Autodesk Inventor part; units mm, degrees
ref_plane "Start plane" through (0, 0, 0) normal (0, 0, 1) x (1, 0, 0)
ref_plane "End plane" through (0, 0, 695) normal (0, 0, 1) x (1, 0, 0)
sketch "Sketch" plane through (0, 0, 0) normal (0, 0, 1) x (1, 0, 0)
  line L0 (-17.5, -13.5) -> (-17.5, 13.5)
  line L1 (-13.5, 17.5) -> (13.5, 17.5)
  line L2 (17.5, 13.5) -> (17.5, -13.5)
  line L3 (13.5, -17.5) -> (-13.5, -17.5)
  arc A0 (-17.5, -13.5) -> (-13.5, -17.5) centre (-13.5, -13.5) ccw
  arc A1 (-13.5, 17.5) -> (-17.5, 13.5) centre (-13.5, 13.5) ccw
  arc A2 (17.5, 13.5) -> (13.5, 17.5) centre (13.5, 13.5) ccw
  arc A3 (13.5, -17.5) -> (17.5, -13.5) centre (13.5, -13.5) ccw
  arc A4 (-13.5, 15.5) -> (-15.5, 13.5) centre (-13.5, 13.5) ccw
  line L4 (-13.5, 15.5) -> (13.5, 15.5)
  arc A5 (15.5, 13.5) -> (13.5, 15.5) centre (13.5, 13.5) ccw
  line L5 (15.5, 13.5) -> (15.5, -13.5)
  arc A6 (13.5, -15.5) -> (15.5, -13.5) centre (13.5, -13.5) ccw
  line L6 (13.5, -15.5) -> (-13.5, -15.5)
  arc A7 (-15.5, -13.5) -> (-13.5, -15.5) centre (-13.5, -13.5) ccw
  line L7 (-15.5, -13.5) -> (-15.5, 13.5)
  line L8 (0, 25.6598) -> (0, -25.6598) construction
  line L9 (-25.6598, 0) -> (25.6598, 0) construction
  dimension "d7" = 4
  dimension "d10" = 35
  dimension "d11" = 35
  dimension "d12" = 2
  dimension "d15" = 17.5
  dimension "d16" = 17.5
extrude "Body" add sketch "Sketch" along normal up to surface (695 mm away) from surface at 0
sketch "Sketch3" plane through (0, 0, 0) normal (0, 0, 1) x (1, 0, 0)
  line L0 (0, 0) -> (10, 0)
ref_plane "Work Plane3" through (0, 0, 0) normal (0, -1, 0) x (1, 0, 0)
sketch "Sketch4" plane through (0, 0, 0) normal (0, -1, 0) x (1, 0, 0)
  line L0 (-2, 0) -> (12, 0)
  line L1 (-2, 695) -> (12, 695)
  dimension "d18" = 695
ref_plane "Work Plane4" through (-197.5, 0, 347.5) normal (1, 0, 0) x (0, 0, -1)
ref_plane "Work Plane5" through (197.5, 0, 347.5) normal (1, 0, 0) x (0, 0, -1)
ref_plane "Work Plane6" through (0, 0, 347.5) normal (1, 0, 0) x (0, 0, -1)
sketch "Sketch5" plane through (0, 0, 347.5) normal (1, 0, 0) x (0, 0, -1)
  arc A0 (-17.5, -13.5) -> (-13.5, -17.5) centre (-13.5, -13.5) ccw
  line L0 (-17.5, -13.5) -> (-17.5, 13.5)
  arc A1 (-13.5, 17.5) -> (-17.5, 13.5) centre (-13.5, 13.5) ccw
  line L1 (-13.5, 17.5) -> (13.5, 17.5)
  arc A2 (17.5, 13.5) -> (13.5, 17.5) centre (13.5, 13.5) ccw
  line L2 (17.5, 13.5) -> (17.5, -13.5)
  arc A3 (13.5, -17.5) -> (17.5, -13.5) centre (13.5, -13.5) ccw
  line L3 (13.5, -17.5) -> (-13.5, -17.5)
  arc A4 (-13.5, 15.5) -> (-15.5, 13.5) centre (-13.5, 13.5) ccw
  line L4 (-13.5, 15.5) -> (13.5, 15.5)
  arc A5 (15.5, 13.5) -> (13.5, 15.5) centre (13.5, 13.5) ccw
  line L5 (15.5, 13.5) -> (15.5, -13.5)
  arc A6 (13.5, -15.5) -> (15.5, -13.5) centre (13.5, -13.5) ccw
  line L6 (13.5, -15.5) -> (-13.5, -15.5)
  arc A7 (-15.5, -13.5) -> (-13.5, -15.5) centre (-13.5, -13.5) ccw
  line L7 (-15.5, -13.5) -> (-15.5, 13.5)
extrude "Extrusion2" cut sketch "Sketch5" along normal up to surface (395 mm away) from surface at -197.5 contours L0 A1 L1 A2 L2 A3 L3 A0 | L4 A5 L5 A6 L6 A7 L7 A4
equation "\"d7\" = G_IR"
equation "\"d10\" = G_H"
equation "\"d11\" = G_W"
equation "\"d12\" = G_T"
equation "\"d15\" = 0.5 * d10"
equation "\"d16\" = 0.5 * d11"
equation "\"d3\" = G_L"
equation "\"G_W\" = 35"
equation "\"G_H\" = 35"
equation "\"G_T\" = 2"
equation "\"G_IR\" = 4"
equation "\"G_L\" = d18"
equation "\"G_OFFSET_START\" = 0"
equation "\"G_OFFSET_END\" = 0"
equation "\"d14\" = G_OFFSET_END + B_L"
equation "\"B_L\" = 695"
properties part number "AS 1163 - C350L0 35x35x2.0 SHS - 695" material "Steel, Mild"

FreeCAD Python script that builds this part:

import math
import FreeCAD as App
import Part
import Sketcher
Q = App.Units.Quantity

doc = App.newDocument("Part")
params = doc.addObject("Spreadsheet::Sheet", "Params")
for row, (alias, value) in enumerate([
    ("sketch1_radius", "4 mm"),
    ("sketch1_radius2", "2 mm"),
    ("pad1_length", "695 mm"),
    ("sketch2_radius", "4 mm"),
    ("sketch2_width", "27 mm"),
    ("pocket1_length", "395 mm"),
], start=1):
    params.set(f"A{row}", alias)
    params.set(f"B{row}", "=" + value)
    params.setAlias(f"B{row}", alias)

body = doc.addObject("PartDesign::Body", "Body")
body.AllowCompound = True

# Sketch on XY plane
sketch1 = body.newObject("Sketcher::SketchObject", "Sketch")
sketch1.AttachmentSupport = (doc.getObject("XY_Plane"), [""])
sketch1.MapMode = "FlatFace"
sketch1.addGeometry(Part.LineSegment(App.Vector(-17.5, 13.5, 0), App.Vector(-17.5, -13.5, 0)), False)
sketch1.addGeometry(Part.ArcOfCircle(Part.Circle(App.Vector(-13.5, -13.5, 0), App.Vector(0, 0, 1), 4), math.radians(180), math.radians(270)), False)
sketch1.addGeometry(Part.LineSegment(App.Vector(-13.5, -17.5, 0), App.Vector(13.5, -17.5, 0)), False)
sketch1.addGeometry(Part.ArcOfCircle(Part.Circle(App.Vector(13.5, -13.5, 0), App.Vector(0, 0, 1), 4), math.radians(-90), math.radians(0)), False)
sketch1.addGeometry(Part.LineSegment(App.Vector(17.5, -13.5, 0), App.Vector(17.5, 13.5, 0)), False)
sketch1.addGeometry(Part.ArcOfCircle(Part.Circle(App.Vector(13.5, 13.5, 0), App.Vector(0, 0, 1), 4), math.radians(0), math.radians(90)), False)
sketch1.addGeometry(Part.LineSegment(App.Vector(13.5, 17.5, 0), App.Vector(-13.5, 17.5, 0)), False)
sketch1.addGeometry(Part.ArcOfCircle(Part.Circle(App.Vector(-13.5, 13.5, 0), App.Vector(0, 0, 1), 4), math.radians(90), math.radians(180)), False)
sketch1.addGeometry(Part.ArcOfCircle(Part.Circle(App.Vector(-13.5, 13.5, 0), App.Vector(0, 0, 1), 2), math.radians(90), math.radians(180)), False)
sketch1.addGeometry(Part.LineSegment(App.Vector(-13.5, 15.5, 0), App.Vector(13.5, 15.5, 0)), False)
sketch1.addGeometry(Part.ArcOfCircle(Part.Circle(App.Vector(13.5, 13.5, 0), App.Vector(0, 0, 1), 2), math.radians(0), math.radians(90)), False)
sketch1.addGeometry(Part.LineSegment(App.Vector(15.5, 13.5, 0), App.Vector(15.5, -13.5, 0)), False)
sketch1.addGeometry(Part.ArcOfCircle(Part.Circle(App.Vector(13.5, -13.5, 0), App.Vector(0, 0, 1), 2), math.radians(-90), math.radians(0)), False)
sketch1.addGeometry(Part.LineSegment(App.Vector(13.5, -15.5, 0), App.Vector(-13.5, -15.5, 0)), False)
sketch1.addGeometry(Part.ArcOfCircle(Part.Circle(App.Vector(-13.5, -13.5, 0), App.Vector(0, 0, 1), 2), math.radians(180), math.radians(270)), False)
sketch1.addGeometry(Part.LineSegment(App.Vector(-15.5, -13.5, 0), App.Vector(-15.5, 13.5, 0)), False)
sketch1.addConstraint(Sketcher.Constraint("Tangent", 0, 2, 1, 1))
sketch1.addConstraint(Sketcher.Constraint("Tangent", 1, 2, 2, 1))
sketch1.addConstraint(Sketcher.Constraint("Tangent", 2, 2, 3, 1))
sketch1.addConstraint(Sketcher.Constraint("Tangent", 3, 2, 4, 1))
sketch1.addConstraint(Sketcher.Constraint("Tangent", 4, 2, 5, 1))
sketch1.addConstraint(Sketcher.Constraint("Tangent", 5, 2, 6, 1))
sketch1.addConstraint(Sketcher.Constraint("Tangent", 6, 2, 7, 1))
sketch1.addConstraint(Sketcher.Constraint("Tangent", 7, 2, 0, 1))
sketch1.addConstraint(Sketcher.Constraint("Tangent", 8, 1, 9, 1))
sketch1.addConstraint(Sketcher.Constraint("Tangent", 9, 2, 10, 2))
sketch1.addConstraint(Sketcher.Constraint("Tangent", 10, 1, 11, 1))
sketch1.addConstraint(Sketcher.Constraint("Tangent", 11, 2, 12, 2))
sketch1.addConstraint(Sketcher.Constraint("Tangent", 12, 1, 13, 1))
sketch1.addConstraint(Sketcher.Constraint("Tangent", 13, 2, 14, 2))
sketch1.addConstraint(Sketcher.Constraint("Tangent", 14, 1, 15, 1))
sketch1.addConstraint(Sketcher.Constraint("Tangent", 15, 2, 8, 2))
sketch1.addConstraint(Sketcher.Constraint("Vertical", 0))
sketch1.addConstraint(Sketcher.Constraint("Horizontal", 2))
sketch1.addConstraint(Sketcher.Constraint("Vertical", 4))
sketch1.addConstraint(Sketcher.Constraint("Horizontal", 6))
sketch1.addConstraint(Sketcher.Constraint("Horizontal", 9))
sketch1.addConstraint(Sketcher.Constraint("Vertical", 11))
sketch1.addConstraint(Sketcher.Constraint("Horizontal", 13))
sketch1.addConstraint(Sketcher.Constraint("Vertical", 15))
sketch1.addConstraint(Sketcher.Constraint("Coincident", 8, 3, 7, 3))
sketch1.addConstraint(Sketcher.Constraint("Coincident", 10, 3, 5, 3))
sketch1.addConstraint(Sketcher.Constraint("Coincident", 12, 3, 3, 3))
sketch1.addConstraint(Sketcher.Constraint("Equal", 1, 3))
sketch1.addConstraint(Sketcher.Constraint("Equal", 3, 5))
sketch1.addConstraint(Sketcher.Constraint("Equal", 5, 7))
sketch1.addConstraint(Sketcher.Constraint("Equal", 12, 14))
sketch1.addConstraint(Sketcher.Constraint("Symmetric", 1, 3, 5, 3, -1, 1))
sketch1.addConstraint(Sketcher.Constraint("Equal", 13, 0))
sketch1.addConstraint(Sketcher.Constraint("Radius", 1, Q("4 mm")))
sketch1.addConstraint(Sketcher.Constraint("Radius", 8, Q("2 mm")))
sketch1.addConstraint(Sketcher.Constraint("DistanceX", 0, 2, -1, 1, Q("17.5 mm")))
sketch1.setExpression("Constraints[33]", "Params.sketch1_radius")
sketch1.setExpression("Constraints[34]", "Params.sketch1_radius2")
pad1 = body.newObject("PartDesign::Pad", "Pad")
pad1.Profile = sketch1
pad1.setExpression("Length", "Params.pad1_length")

# Sketch on YZ plane
sketch2 = body.newObject("Sketcher::SketchObject", "Sketch001")
sketch2.AttachmentSupport = (doc.getObject("YZ_Plane"), [""])
sketch2.MapMode = "FlatFace"
sketch2.AttachmentOffset = App.Placement(App.Vector(0, 0, -197.5), App.Rotation())
sketch2.addGeometry(Part.LineSegment(App.Vector(13.5, 365, 0), App.Vector(-13.5, 365, 0)), False)
sketch2.addGeometry(Part.ArcOfCircle(Part.Circle(App.Vector(-13.5, 361, 0), App.Vector(0, 0, 1), 4), math.radians(90), math.radians(180)), False)
sketch2.addGeometry(Part.LineSegment(App.Vector(-17.5, 361, 0), App.Vector(-17.5, 334, 0)), False)
sketch2.addGeometry(Part.ArcOfCircle(Part.Circle(App.Vector(-13.5, 334, 0), App.Vector(0, 0, 1), 4), math.radians(180), math.radians(270)), False)
sketch2.addGeometry(Part.LineSegment(App.Vector(-13.5, 330, 0), App.Vector(13.5, 330, 0)), False)
sketch2.addGeometry(Part.ArcOfCircle(Part.Circle(App.Vector(13.5, 334, 0), App.Vector(0, 0, 1), 4), math.radians(-90), math.radians(0)), False)
sketch2.addGeometry(Part.LineSegment(App.Vector(17.5, 334, 0), App.Vector(17.5, 361, 0)), False)
sketch2.addGeometry(Part.ArcOfCircle(Part.Circle(App.Vector(13.5, 361, 0), App.Vector(0, 0, 1), 4), math.radians(0), math.radians(90)), False)
sketch2.addConstraint(Sketcher.Constraint("Tangent", 0, 2, 1, 1))
sketch2.addConstraint(Sketcher.Constraint("Tangent", 1, 2, 2, 1))
sketch2.addConstraint(Sketcher.Constraint("Tangent", 2, 2, 3, 1))
sketch2.addConstraint(Sketcher.Constraint("Tangent", 3, 2, 4, 1))
sketch2.addConstraint(Sketcher.Constraint("Tangent", 4, 2, 5, 1))
sketch2.addConstraint(Sketcher.Constraint("Tangent", 5, 2, 6, 1))
sketch2.addConstraint(Sketcher.Constraint("Tangent", 6, 2, 7, 1))
sketch2.addConstraint(Sketcher.Constraint("Tangent", 7, 2, 0, 1))
sketch2.addConstraint(Sketcher.Constraint("Horizontal", 0))
sketch2.addConstraint(Sketcher.Constraint("Vertical", 2))
sketch2.addConstraint(Sketcher.Constraint("Horizontal", 4))
sketch2.addConstraint(Sketcher.Constraint("Vertical", 6))
sketch2.addConstraint(Sketcher.Constraint("Equal", 1, 3))
sketch2.addConstraint(Sketcher.Constraint("Equal", 3, 5))
sketch2.addConstraint(Sketcher.Constraint("Equal", 5, 7))
sketch2.addConstraint(Sketcher.Constraint("Equal", 4, 2))
sketch2.addConstraint(Sketcher.Constraint("Radius", 1, Q("4 mm")))
sketch2.addConstraint(Sketcher.Constraint("DistanceX", 0, 2, 0, 1, Q("27 mm")))
sketch2.addConstraint(Sketcher.Constraint("DistanceY", -1, 1, 1, 3, Q("361 mm")))
sketch2.addConstraint(Sketcher.Constraint("DistanceX", 1, 3, -1, 1, Q("13.5 mm")))
sketch2.setExpression("Constraints[16]", "Params.sketch2_radius")
sketch2.setExpression("Constraints[17]", "Params.sketch2_width")
pocket1 = body.newObject("PartDesign::Pocket", "Pocket")
pocket1.Profile = sketch2
pocket1.setExpression("Length", "Params.pocket1_length")
pocket1.Reversed = True

doc.recompute()
